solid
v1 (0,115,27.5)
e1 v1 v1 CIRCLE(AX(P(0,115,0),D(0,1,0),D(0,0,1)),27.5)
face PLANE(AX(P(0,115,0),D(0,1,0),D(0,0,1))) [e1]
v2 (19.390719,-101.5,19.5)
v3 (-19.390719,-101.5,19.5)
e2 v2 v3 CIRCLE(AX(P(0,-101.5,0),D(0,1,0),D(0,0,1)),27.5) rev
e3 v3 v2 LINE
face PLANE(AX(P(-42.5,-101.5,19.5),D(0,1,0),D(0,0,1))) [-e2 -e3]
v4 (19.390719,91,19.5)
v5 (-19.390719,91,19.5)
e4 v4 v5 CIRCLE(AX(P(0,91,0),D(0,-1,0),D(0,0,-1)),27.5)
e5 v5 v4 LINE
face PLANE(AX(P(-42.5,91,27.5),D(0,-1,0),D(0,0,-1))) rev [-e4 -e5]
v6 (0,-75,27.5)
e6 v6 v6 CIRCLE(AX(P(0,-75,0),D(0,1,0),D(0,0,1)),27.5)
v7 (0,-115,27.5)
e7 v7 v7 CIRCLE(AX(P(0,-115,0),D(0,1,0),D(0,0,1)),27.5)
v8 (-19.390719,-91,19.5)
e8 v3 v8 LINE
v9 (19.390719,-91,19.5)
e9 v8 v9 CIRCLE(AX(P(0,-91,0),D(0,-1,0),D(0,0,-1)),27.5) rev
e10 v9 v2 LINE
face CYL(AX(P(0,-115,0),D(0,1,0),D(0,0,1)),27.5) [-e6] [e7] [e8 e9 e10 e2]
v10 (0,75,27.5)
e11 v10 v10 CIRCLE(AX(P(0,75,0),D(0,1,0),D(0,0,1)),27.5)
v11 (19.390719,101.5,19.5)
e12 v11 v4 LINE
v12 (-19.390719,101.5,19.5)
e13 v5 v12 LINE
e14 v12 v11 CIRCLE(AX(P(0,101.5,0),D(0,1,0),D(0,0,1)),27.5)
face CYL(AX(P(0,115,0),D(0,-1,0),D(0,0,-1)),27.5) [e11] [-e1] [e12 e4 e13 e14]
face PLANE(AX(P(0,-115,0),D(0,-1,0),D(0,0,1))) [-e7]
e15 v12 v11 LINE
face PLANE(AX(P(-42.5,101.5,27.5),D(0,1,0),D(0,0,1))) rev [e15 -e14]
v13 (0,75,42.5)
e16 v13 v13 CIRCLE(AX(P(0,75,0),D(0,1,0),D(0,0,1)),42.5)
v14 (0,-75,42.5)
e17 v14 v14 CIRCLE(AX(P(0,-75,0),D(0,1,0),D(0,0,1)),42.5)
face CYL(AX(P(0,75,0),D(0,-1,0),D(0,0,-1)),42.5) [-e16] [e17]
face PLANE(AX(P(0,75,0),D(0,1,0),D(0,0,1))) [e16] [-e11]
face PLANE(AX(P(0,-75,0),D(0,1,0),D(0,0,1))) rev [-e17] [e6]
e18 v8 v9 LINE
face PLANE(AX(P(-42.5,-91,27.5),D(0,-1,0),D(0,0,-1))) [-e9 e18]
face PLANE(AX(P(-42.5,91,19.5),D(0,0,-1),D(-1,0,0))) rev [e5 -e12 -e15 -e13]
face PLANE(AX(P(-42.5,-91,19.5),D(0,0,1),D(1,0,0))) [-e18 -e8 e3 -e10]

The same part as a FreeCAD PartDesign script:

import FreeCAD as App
import Part
import Sketcher
from FreeCAD import Vector
Q = App.Units.Quantity

doc = App.newDocument("Part")
body = doc.addObject("PartDesign::Body", "Body")

sketch1 = doc.addObject("Sketcher::SketchObject", "Sketch")
body.addObject(sketch1)
sketch1.AttachmentSupport = (doc.XZ_Plane, [""])
sketch1.MapMode = "FlatFace"
sketch1.addGeometry(Part.Circle(Vector(0, 0, 0), Vector(0, 0, 1), 42.5), False)
sketch1.addConstraint([
    Sketcher.Constraint("Coincident", 0, 3, -1, 1),
    Sketcher.Constraint("Diameter", 0, Q("85 mm")),
])
pad1 = doc.addObject("PartDesign::Pad", "Pad")
body.addObject(pad1)
pad1.Profile = sketch1
pad1.Length = 150
pad1.Midplane = True

sketch2 = doc.addObject("Sketcher::SketchObject", "Sketch001")
body.addObject(sketch2)
sketch2.AttachmentSupport = (doc.XZ_Plane, [""])
sketch2.MapMode = "FlatFace"
sketch2.AttachmentOffset = App.Placement(Vector(0, 0, -75), App.Rotation())
sketch2.addGeometry(Part.Circle(Vector(0, 0, 0), Vector(0, 0, 1), 27.5), False)
sketch2.addConstraint([
    Sketcher.Constraint("Coincident", 0, 3, -1, 1),
    Sketcher.Constraint("Diameter", 0, Q("55 mm")),
])
pad2 = doc.addObject("PartDesign::Pad", "Pad001")
body.addObject(pad2)
pad2.Profile = sketch2
pad2.Length = 40
pad2.Reversed = True

sketch3 = doc.addObject("Sketcher::SketchObject", "Sketch002")
body.addObject(sketch3)
sketch3.AttachmentSupport = (doc.YZ_Plane, [""])
sketch3.MapMode = "FlatFace"
sketch3.addGeometry([
    Part.LineSegment(Vector(91, 19.5, 0), Vector(101.5, 19.5, 0)),
    Part.LineSegment(Vector(101.5, 19.5, 0), Vector(101.5, 29.5, 0)),
    Part.LineSegment(Vector(101.5, 29.5, 0), Vector(91, 29.5, 0)),
    Part.LineSegment(Vector(91, 29.5, 0), Vector(91, 19.5, 0)),
], False)
sketch3.addConstraint([
    Sketcher.Constraint("Coincident", 0, 2, 1, 1),
    Sketcher.Constraint("Coincident", 1, 2, 2, 1),
    Sketcher.Constraint("Coincident", 2, 2, 3, 1),
    Sketcher.Constraint("Coincident", 3, 2, 0, 1),
    Sketcher.Constraint("Horizontal", 0),
    Sketcher.Constraint("Vertical", 1),
    Sketcher.Constraint("Horizontal", 2),
    Sketcher.Constraint("Vertical", 3),
    Sketcher.Constraint("DistanceY", 1, 1, 1, 2, Q("10 mm")),
    Sketcher.Constraint("DistanceX", 0, 1, 0, 2, Q("10.5 mm")),
    Sketcher.Constraint("DistanceX", -1, 1, 2, 2, Q("91 mm")),
    Sketcher.Constraint("DistanceY", -1, 1, 0, 2, Q("19.5 mm")),
])
pocket1 = doc.addObject("PartDesign::Pocket", "Pocket")
body.addObject(pocket1)
pocket1.Profile = sketch3
pocket1.Length = 261.518785
pocket1.Midplane = True
doc.recompute()

mirrored = doc.addObject("PartDesign::Mirrored", "Mirrored")
body.addObject(mirrored)
mirrored.Originals = [pad2, pocket1]
mirrored.MirrorPlane = (doc.XZ_Plane, [""])
body.Tip = mirrored

doc.recompute()
